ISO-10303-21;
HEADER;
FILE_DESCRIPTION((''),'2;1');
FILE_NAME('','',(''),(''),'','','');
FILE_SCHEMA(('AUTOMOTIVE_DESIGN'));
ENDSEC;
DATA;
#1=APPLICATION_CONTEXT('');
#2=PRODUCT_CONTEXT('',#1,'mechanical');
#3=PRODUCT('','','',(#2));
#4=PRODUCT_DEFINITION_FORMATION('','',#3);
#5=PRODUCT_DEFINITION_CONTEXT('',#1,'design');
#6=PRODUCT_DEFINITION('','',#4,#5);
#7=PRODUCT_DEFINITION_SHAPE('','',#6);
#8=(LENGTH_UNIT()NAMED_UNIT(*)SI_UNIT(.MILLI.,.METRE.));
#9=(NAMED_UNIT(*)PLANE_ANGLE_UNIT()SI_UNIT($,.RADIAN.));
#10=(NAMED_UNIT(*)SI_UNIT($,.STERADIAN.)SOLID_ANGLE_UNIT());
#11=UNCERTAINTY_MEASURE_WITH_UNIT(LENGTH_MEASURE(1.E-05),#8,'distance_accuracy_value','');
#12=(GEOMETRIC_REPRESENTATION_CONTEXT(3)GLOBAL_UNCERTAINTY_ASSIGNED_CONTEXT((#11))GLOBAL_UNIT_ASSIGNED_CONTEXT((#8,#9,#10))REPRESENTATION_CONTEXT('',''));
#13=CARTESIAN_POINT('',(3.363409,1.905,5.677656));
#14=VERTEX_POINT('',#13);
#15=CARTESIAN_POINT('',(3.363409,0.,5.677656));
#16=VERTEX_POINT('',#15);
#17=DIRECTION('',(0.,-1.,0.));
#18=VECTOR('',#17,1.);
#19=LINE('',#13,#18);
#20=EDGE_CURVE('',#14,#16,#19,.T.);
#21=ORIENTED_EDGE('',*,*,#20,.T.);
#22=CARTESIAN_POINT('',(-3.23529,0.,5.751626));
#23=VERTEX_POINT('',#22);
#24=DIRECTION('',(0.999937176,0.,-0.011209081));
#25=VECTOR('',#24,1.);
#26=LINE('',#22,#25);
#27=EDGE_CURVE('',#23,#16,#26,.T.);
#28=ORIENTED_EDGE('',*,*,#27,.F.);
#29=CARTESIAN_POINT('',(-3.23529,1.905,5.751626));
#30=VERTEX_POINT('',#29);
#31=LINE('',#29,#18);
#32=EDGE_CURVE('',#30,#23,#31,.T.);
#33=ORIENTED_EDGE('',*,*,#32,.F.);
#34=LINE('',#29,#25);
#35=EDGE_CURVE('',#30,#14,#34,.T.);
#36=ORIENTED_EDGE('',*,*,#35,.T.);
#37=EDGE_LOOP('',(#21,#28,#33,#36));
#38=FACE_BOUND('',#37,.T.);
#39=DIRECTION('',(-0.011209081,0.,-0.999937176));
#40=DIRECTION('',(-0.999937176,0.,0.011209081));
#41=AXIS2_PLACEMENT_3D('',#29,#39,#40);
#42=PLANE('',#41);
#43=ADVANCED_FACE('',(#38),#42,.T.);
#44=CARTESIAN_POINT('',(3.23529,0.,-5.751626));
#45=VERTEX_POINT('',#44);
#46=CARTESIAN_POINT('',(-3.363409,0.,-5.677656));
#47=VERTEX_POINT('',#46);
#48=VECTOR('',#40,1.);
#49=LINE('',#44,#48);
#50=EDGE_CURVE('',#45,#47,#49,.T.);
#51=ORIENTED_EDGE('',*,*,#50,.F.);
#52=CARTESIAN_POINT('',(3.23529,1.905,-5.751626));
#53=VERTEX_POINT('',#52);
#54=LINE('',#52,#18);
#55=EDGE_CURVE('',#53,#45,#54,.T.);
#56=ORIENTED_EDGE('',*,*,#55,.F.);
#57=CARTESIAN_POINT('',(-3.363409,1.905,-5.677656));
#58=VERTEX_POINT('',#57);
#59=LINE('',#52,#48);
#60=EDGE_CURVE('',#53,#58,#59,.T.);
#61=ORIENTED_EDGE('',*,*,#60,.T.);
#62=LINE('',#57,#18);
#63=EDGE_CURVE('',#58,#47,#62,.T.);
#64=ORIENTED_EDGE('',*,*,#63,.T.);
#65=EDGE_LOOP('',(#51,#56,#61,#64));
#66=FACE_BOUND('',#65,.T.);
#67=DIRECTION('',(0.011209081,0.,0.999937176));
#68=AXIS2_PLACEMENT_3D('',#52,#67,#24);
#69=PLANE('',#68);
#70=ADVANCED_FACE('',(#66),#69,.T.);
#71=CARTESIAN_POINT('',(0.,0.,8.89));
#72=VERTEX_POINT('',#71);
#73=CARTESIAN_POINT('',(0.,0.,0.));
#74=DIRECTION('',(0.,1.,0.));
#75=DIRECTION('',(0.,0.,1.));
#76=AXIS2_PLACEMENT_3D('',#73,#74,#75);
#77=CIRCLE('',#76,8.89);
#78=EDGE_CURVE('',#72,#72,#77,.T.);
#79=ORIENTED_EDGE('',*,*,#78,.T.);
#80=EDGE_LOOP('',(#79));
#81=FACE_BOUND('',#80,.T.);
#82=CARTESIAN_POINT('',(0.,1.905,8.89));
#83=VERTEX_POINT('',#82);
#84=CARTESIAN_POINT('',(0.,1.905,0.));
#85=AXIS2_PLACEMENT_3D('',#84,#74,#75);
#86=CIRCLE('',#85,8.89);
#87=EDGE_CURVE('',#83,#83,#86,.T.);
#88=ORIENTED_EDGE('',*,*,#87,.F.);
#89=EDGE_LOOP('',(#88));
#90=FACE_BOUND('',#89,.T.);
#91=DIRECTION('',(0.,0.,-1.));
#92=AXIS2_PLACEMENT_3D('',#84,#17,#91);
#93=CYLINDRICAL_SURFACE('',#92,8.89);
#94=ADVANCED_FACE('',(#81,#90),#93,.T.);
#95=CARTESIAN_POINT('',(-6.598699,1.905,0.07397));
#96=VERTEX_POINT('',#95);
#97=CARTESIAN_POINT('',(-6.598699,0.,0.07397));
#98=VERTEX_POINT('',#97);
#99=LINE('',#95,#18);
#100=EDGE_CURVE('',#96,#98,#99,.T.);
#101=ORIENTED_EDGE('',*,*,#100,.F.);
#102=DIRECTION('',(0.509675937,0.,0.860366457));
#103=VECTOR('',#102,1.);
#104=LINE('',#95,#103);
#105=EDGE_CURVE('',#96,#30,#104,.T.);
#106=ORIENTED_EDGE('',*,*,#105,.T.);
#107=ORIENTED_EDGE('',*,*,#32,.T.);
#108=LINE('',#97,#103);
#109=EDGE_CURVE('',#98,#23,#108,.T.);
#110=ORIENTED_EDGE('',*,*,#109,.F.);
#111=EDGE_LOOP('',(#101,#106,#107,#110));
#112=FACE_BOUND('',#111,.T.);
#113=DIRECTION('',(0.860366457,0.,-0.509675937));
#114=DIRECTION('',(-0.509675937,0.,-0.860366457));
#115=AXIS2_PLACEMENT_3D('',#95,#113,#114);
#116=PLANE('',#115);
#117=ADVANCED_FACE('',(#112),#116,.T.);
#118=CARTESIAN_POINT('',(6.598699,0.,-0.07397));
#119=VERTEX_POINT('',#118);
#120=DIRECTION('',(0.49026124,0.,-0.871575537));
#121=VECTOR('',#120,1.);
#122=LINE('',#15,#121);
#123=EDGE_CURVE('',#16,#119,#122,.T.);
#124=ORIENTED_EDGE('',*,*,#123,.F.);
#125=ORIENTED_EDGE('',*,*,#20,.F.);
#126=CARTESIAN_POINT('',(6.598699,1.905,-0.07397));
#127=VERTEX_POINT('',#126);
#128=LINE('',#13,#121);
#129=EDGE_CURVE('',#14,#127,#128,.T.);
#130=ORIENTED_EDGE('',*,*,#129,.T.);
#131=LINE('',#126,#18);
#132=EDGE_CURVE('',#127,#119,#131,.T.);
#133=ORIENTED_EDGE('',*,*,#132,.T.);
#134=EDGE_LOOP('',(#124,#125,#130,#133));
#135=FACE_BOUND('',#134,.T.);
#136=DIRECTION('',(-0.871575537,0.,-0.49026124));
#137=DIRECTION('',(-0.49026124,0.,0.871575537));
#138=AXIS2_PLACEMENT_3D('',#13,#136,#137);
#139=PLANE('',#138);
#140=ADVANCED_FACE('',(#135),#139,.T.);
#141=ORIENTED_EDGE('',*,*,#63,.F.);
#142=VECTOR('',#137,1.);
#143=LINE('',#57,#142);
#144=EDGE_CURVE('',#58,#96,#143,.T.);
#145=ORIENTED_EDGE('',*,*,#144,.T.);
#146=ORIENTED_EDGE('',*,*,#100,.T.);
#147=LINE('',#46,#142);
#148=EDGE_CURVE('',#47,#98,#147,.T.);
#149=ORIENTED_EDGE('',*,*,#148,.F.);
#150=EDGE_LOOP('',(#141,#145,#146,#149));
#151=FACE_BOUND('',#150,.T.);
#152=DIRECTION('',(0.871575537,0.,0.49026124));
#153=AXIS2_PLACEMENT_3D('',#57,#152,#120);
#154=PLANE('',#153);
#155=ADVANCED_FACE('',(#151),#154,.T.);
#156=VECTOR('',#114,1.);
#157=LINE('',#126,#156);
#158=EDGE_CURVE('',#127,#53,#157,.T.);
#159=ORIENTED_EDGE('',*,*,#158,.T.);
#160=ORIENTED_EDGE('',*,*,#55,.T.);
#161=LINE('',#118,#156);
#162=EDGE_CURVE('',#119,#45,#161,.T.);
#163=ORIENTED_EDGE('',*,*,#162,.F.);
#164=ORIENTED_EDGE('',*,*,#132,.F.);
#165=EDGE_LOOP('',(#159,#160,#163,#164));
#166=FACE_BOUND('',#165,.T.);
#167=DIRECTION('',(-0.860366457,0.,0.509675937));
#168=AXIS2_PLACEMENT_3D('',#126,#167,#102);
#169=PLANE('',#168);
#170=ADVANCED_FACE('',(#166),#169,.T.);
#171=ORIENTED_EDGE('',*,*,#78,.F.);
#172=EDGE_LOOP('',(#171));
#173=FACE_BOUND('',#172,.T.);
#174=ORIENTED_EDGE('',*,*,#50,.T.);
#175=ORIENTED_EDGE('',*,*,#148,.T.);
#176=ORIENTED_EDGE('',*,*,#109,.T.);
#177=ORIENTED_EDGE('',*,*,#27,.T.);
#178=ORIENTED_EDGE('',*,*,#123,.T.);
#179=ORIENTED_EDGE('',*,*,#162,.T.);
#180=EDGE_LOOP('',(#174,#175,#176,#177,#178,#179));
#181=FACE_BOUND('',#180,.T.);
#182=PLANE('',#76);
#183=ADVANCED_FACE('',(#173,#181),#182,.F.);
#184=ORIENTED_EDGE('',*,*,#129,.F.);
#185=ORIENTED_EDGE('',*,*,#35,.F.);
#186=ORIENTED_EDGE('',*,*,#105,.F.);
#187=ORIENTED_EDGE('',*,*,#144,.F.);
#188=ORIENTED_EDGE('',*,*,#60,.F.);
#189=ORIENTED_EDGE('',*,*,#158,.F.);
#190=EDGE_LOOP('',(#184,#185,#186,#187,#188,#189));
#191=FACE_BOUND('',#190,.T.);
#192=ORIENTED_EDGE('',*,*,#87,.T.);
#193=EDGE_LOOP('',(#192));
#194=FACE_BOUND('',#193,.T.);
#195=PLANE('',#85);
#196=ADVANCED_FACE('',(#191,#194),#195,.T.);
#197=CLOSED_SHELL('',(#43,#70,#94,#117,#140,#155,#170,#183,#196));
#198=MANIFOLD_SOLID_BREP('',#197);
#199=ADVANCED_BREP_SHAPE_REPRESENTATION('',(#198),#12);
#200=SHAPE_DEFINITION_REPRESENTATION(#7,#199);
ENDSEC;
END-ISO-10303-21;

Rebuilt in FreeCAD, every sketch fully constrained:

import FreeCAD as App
import Part
import Sketcher

V = App.Vector
Q = App.Units.Quantity


def add_polygon(sketch, points):
    """Adds a closed chain of lines whose ends are joined by coincident constraints."""
    first, n = sketch.GeometryCount, len(points)
    for a, b in zip(points, points[1:] + points[:1]):
        sketch.addGeometry(Part.LineSegment(App.Vector(*a, 0), App.Vector(*b, 0)), False)
    for i in range(n):
        sketch.addConstraint(Sketcher.Constraint("Coincident", first + i, 2, first + (i + 1) % n, 1))

doc = App.newDocument("Part")
body = doc.addObject("PartDesign::Body", "Body")

# Sketch on XZ plane
sketch1 = doc.addObject("Sketcher::SketchObject", "Sketch")
body.addObject(sketch1)
sketch1.AttachmentSupport = (doc.XZ_Plane, [""])
sketch1.MapMode = "FlatFace"
sketch1.addGeometry(Part.Circle(V(0, 0, 0), V(0, 0, 1), 9), False)  # 0
add_polygon(sketch1, [(3, 6), (-3, 6), (-7, 0), (-3, -6), (3, -6), (7, 0)])  # lines 1-6
sketch1.addConstraint([
    Sketcher.Constraint("Coincident", 0, 3, -1, 1),
    Sketcher.Constraint("Symmetric", 1, 2, 4, 2, -1, 1),
    Sketcher.Constraint("Symmetric", 2, 2, 5, 2, -1, 1),
    Sketcher.Constraint("Symmetric", 3, 2, 6, 2, -1, 1),
    Sketcher.Constraint("Equal", 1, 2),
    Sketcher.Constraint("Equal", 2, 3),
    Sketcher.Constraint("Diameter", 0, Q("0.7 in")),
    Sketcher.Constraint("DistanceX", 2, 2, -1, 1, 6.598699),
    Sketcher.Constraint("DistanceX", 3, 2, 4, 2, 6.598699),
    Sketcher.Constraint("DistanceX", 1, 2, -1, 1, 3.23529),
    Sketcher.Constraint("DistanceY", -1, 1, 2, 2, 0.07397),
])
pad1 = doc.addObject("PartDesign::Pad", "Pad")
body.addObject(pad1)
pad1.Profile = sketch1
pad1.Length = Q("0.075 in")
pad1.Reversed = True

doc.recompute()
